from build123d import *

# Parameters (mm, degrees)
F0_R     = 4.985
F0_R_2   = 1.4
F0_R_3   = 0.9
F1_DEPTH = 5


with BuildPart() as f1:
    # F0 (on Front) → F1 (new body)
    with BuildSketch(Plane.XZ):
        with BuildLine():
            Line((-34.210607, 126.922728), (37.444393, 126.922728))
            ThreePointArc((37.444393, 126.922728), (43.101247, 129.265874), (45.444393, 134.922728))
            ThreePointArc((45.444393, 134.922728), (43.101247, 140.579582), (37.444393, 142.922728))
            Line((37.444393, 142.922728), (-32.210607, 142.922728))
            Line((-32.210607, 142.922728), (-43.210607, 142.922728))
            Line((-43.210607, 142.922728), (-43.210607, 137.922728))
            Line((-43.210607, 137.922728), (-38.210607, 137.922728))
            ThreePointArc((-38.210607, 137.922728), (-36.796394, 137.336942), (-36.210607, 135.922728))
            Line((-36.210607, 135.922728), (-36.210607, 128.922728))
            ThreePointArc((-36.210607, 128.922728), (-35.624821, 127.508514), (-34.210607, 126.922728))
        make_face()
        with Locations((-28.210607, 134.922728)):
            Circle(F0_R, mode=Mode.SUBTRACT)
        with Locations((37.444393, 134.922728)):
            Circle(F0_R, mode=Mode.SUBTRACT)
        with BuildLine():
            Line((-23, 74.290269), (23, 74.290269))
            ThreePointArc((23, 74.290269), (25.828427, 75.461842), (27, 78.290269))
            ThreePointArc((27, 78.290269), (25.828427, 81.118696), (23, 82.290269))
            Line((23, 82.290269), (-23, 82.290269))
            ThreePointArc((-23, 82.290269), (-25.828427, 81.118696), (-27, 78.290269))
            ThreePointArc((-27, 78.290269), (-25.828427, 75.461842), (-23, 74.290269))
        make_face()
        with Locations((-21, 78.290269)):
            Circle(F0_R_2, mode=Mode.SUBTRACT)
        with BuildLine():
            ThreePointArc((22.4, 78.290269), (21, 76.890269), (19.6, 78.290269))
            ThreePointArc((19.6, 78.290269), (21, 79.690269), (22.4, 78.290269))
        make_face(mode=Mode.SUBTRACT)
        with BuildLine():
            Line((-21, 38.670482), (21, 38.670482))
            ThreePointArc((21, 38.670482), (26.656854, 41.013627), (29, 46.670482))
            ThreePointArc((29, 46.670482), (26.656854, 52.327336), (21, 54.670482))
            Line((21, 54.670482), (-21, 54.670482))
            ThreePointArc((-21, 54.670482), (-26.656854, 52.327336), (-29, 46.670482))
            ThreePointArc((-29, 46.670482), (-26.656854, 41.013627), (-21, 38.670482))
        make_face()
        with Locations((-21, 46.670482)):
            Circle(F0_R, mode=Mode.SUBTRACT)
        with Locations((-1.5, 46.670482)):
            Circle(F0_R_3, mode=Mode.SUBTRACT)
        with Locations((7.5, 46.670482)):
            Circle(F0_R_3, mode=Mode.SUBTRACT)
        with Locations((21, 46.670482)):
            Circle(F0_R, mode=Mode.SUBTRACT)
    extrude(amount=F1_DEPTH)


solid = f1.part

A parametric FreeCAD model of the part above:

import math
import FreeCAD as App
import Part
import Sketcher
from FreeCAD import Vector
Q = App.Units.Quantity

doc = App.newDocument("Part")
body = doc.addObject("PartDesign::Body", "Body")
body.AllowCompound = True

# Sketch on XZ plane
sketch1 = doc.addObject("Sketcher::SketchObject", "Sketch")
body.addObject(sketch1)
sketch1.AttachmentSupport = (doc.XZ_Plane, [""])
sketch1.MapMode = "FlatFace"
sketch1.addGeometry(Part.LineSegment(Vector(-34.2, 126.9, 0), Vector(37.4, 126.9, 0)), False)
sketch1.addGeometry(Part.ArcOfCircle(Part.Circle(Vector(37.4, 134.9, 0), Vector(0, 0, 1), 8), math.radians(-90), math.radians(0)), False)
sketch1.addGeometry(Part.ArcOfCircle(Part.Circle(Vector(37.4, 134.9, 0), Vector(0, 0, 1), 8), math.radians(0), math.radians(90)), False)
sketch1.addGeometry(Part.LineSegment(Vector(37.4, 142.9, 0), Vector(-43.2, 142.9, 0)), False)
sketch1.addGeometry(Part.LineSegment(Vector(-43.2, 142.9, 0), Vector(-43.2, 137.9, 0)), False)
sketch1.addGeometry(Part.LineSegment(Vector(-43.2, 137.9, 0), Vector(-38.2, 137.9, 0)), False)
sketch1.addGeometry(Part.ArcOfCircle(Part.Circle(Vector(-38.2, 135.9, 0), Vector(0, 0, 1), 2), math.radians(0), math.radians(90)), False)
sketch1.addGeometry(Part.LineSegment(Vector(-36.2, 135.9, 0), Vector(-36.2, 128.9, 0)), False)
sketch1.addGeometry(Part.ArcOfCircle(Part.Circle(Vector(-34.2, 128.9, 0), Vector(0, 0, 1), 2), math.radians(180), math.radians(270)), False)
sketch1.addGeometry(Part.Circle(Vector(-28.2, 134.9, 0), Vector(0, 0, 1), 5), False)
sketch1.addGeometry(Part.Circle(Vector(37.4, 134.9, 0), Vector(0, 0, 1), 5), False)
sketch1.addGeometry(Part.LineSegment(Vector(-23, 74.3, 0), Vector(23, 74.3, 0)), False)
sketch1.addGeometry(Part.ArcOfCircle(Part.Circle(Vector(23, 78.3, 0), Vector(0, 0, 1), 4), math.radians(-90), math.radians(0)), False)
sketch1.addGeometry(Part.ArcOfCircle(Part.Circle(Vector(23, 78.3, 0), Vector(0, 0, 1), 4), math.radians(0), math.radians(90)), False)
sketch1.addGeometry(Part.LineSegment(Vector(23, 82.3, 0), Vector(-23, 82.3, 0)), False)
sketch1.addGeometry(Part.ArcOfCircle(Part.Circle(Vector(-23, 78.3, 0), Vector(0, 0, 1), 4), math.radians(90), math.radians(180)), False)
sketch1.addGeometry(Part.ArcOfCircle(Part.Circle(Vector(-23, 78.3, 0), Vector(0, 0, 1), 4), math.radians(-180), math.radians(-90)), False)
sketch1.addGeometry(Part.Circle(Vector(-21, 78.3, 0), Vector(0, 0, 1), 1.4), False)
sketch1.addGeometry(Part.Circle(Vector(21, 78.3, 0), Vector(0, 0, 1), 1.4), False)
sketch1.addGeometry(Part.LineSegment(Vector(-21, 38.7, 0), Vector(21, 38.7, 0)), False)
sketch1.addGeometry(Part.ArcOfCircle(Part.Circle(Vector(21, 46.7, 0), Vector(0, 0, 1), 8), math.radians(-90), math.radians(0)), False)
sketch1.addGeometry(Part.ArcOfCircle(Part.Circle(Vector(21, 46.7, 0), Vector(0, 0, 1), 8), math.radians(0), math.radians(90)), False)
sketch1.addGeometry(Part.LineSegment(Vector(21, 54.7, 0), Vector(-21, 54.7, 0)), False)
sketch1.addGeometry(Part.ArcOfCircle(Part.Circle(Vector(-21, 46.7, 0), Vector(0, 0, 1), 8), math.radians(90), math.radians(180)), False)
sketch1.addGeometry(Part.ArcOfCircle(Part.Circle(Vector(-21, 46.7, 0), Vector(0, 0, 1), 8), math.radians(180), math.radians(270)), False)
sketch1.addGeometry(Part.Circle(Vector(-21, 46.7, 0), Vector(0, 0, 1), 5), False)
sketch1.addGeometry(Part.Circle(Vector(-1.5, 46.7, 0), Vector(0, 0, 1), 0.9), False)
sketch1.addGeometry(Part.Circle(Vector(7.5, 46.7, 0), Vector(0, 0, 1), 0.9), False)
sketch1.addGeometry(Part.Circle(Vector(21, 46.7, 0), Vector(0, 0, 1), 5), False)
sketch1.addConstraint(Sketcher.Constraint("Tangent", 0, 2, 1, 1))
sketch1.addConstraint(Sketcher.Constraint("Tangent", 1, 2, 2, 1))
sketch1.addConstraint(Sketcher.Constraint("Tangent", 2, 2, 3, 1))
sketch1.addConstraint(Sketcher.Constraint("Coincident", 3, 2, 4, 1))
sketch1.addConstraint(Sketcher.Constraint("Coincident", 4, 2, 5, 1))
sketch1.addConstraint(Sketcher.Constraint("Tangent", 5, 2, 6, 2))
sketch1.addConstraint(Sketcher.Constraint("Tangent", 6, 1, 7, 1))
sketch1.addConstraint(Sketcher.Constraint("Tangent", 7, 2, 8, 1))
sketch1.addConstraint(Sketcher.Constraint("Tangent", 8, 2, 0, 1))
sketch1.addConstraint(Sketcher.Constraint("Tangent", 11, 2, 12, 1))
sketch1.addConstraint(Sketcher.Constraint("Tangent", 12, 2, 13, 1))
sketch1.addConstraint(Sketcher.Constraint("Tangent", 13, 2, 14, 1))
sketch1.addConstraint(Sketcher.Constraint("Tangent", 14, 2, 15, 1))
sketch1.addConstraint(Sketcher.Constraint("Tangent", 15, 2, 16, 1))
sketch1.addConstraint(Sketcher.Constraint("Tangent", 16, 2, 11, 1))
sketch1.addConstraint(Sketcher.Constraint("Tangent", 19, 2, 20, 1))
sketch1.addConstraint(Sketcher.Constraint("Tangent", 20, 2, 21, 1))
sketch1.addConstraint(Sketcher.Constraint("Tangent", 21, 2, 22, 1))
sketch1.addConstraint(Sketcher.Constraint("Tangent", 22, 2, 23, 1))
sketch1.addConstraint(Sketcher.Constraint("Tangent", 23, 2, 24, 1))
sketch1.addConstraint(Sketcher.Constraint("Tangent", 24, 2, 19, 1))
sketch1.addConstraint(Sketcher.Constraint("Horizontal", 0))
sketch1.addConstraint(Sketcher.Constraint("Horizontal", 3))
sketch1.addConstraint(Sketcher.Constraint("Vertical", 4))
sketch1.addConstraint(Sketcher.Constraint("Horizontal", 5))
sketch1.addConstraint(Sketcher.Constraint("Vertical", 7))
sketch1.addConstraint(Sketcher.Constraint("Horizontal", 11))
sketch1.addConstraint(Sketcher.Constraint("Horizontal", 14))
sketch1.addConstraint(Sketcher.Constraint("Horizontal", 19))
sketch1.addConstraint(Sketcher.Constraint("Horizontal", 22))
sketch1.addConstraint(Sketcher.Constraint("Coincident", 10, 3, 1, 3))
sketch1.addConstraint(Sketcher.Constraint("Coincident", 25, 3, 23, 3))
sketch1.addConstraint(Sketcher.Constraint("Coincident", 28, 3, 20, 3))
sketch1.addConstraint(Sketcher.Constraint("Equal", 1, 2))
sketch1.addConstraint(Sketcher.Constraint("Equal", 6, 8))
sketch1.addConstraint(Sketcher.Constraint("Equal", 9, 10))
sketch1.addConstraint(Sketcher.Constraint("Equal", 12, 13))
sketch1.addConstraint(Sketcher.Constraint("Equal", 13, 15))
sketch1.addConstraint(Sketcher.Constraint("Equal", 17, 18))
sketch1.addConstraint(Sketcher.Constraint("Equal", 2, 20))
sketch1.addConstraint(Sketcher.Constraint("Equal", 20, 21))
sketch1.addConstraint(Sketcher.Constraint("Equal", 21, 23))
sketch1.addConstraint(Sketcher.Constraint("Equal", 10, 25))
sketch1.addConstraint(Sketcher.Constraint("Equal", 26, 27))
sketch1.addConstraint(Sketcher.Constraint("Equal", 25, 28))
sketch1.addConstraint(Sketcher.Constraint("Symmetric", 17, 3, 18, 3, -2))
sketch1.addConstraint(Sketcher.Constraint("Symmetric", 12, 2, 15, 2, -2))
sketch1.addConstraint(Sketcher.Constraint("Symmetric", 20, 2, 23, 2, -2))
sketch1.addConstraint(Sketcher.Constraint("Horizontal", 2, 3, 9, 3))
sketch1.addConstraint(Sketcher.Constraint("Horizontal", 16, 3, 17, 3))
sketch1.addConstraint(Sketcher.Constraint("Horizontal", 25, 3, 26, 3))
sketch1.addConstraint(Sketcher.Constraint("Horizontal", 26, 3, 27, 3))
sketch1.addConstraint(Sketcher.Constraint("Horizontal", 10, 3, 1, 2))
sketch1.addConstraint(Sketcher.Constraint("Horizontal", 18, 3, 12, 2))
sketch1.addConstraint(Sketcher.Constraint("Horizontal", 28, 3, 20, 2))
sketch1.addConstraint(Sketcher.Constraint("Vertical", 18, 3, 20, 3))
sketch1.addConstraint(Sketcher.Constraint("Equal", 5, 4))
sketch1.addConstraint(Sketcher.Constraint("Radius", 1, Q("8.000001 mm")))
sketch1.addConstraint(Sketcher.Constraint("Radius", 6, Q("2 mm")))
sketch1.addConstraint(Sketcher.Constraint("Radius", 12, Q("4 mm")))
sketch1.addConstraint(Sketcher.Constraint("Diameter", 17, Q("2.8 mm")))
sketch1.addConstraint(Sketcher.Constraint("Diameter", 26, Q("1.8 mm")))
sketch1.addConstraint(Sketcher.Constraint("Diameter", 9, Q("9.97 mm")))
sketch1.addConstraint(Sketcher.Constraint("DistanceX", 5, 1, 5, 2, Q("5 mm")))
sketch1.addConstraint(Sketcher.Constraint("DistanceX", 11, 1, 11, 2, Q("46 mm")))
sketch1.addConstraint(Sketcher.Constraint("DistanceX", 19, 1, 19, 2, Q("42 mm")))
sketch1.addConstraint(Sketcher.Constraint("DistanceX", 8, 3, 9, 3, Q("6.000001 mm")))
sketch1.addConstraint(Sketcher.Constraint("DistanceX", 26, 3, 27, 3, Q("9 mm")))
sketch1.addConstraint(Sketcher.Constraint("DistanceX", 26, 3, -1, 1, Q("1.5 mm")))
sketch1.addConstraint(Sketcher.Constraint("DistanceX", 0, 1, 0, 2, Q("71.655 mm")))
sketch1.addConstraint(Sketcher.Constraint("DistanceY", -1, 1, 1, 3, Q("134.922729 mm")))
sketch1.addConstraint(Sketcher.Constraint("DistanceX", 8, 3, -1, 1, Q("34.210608 mm")))
sketch1.addConstraint(Sketcher.Constraint("DistanceY", -1, 1, 12, 3, Q("78.290269 mm")))
sketch1.addConstraint(Sketcher.Constraint("DistanceY", -1, 1, 20, 3, Q("46.670481 mm")))
pad1 = doc.addObject("PartDesign::Pad", "Pad")
body.addObject(pad1)
pad1.Profile = sketch1
pad1.Length = 5

doc.recompute()
